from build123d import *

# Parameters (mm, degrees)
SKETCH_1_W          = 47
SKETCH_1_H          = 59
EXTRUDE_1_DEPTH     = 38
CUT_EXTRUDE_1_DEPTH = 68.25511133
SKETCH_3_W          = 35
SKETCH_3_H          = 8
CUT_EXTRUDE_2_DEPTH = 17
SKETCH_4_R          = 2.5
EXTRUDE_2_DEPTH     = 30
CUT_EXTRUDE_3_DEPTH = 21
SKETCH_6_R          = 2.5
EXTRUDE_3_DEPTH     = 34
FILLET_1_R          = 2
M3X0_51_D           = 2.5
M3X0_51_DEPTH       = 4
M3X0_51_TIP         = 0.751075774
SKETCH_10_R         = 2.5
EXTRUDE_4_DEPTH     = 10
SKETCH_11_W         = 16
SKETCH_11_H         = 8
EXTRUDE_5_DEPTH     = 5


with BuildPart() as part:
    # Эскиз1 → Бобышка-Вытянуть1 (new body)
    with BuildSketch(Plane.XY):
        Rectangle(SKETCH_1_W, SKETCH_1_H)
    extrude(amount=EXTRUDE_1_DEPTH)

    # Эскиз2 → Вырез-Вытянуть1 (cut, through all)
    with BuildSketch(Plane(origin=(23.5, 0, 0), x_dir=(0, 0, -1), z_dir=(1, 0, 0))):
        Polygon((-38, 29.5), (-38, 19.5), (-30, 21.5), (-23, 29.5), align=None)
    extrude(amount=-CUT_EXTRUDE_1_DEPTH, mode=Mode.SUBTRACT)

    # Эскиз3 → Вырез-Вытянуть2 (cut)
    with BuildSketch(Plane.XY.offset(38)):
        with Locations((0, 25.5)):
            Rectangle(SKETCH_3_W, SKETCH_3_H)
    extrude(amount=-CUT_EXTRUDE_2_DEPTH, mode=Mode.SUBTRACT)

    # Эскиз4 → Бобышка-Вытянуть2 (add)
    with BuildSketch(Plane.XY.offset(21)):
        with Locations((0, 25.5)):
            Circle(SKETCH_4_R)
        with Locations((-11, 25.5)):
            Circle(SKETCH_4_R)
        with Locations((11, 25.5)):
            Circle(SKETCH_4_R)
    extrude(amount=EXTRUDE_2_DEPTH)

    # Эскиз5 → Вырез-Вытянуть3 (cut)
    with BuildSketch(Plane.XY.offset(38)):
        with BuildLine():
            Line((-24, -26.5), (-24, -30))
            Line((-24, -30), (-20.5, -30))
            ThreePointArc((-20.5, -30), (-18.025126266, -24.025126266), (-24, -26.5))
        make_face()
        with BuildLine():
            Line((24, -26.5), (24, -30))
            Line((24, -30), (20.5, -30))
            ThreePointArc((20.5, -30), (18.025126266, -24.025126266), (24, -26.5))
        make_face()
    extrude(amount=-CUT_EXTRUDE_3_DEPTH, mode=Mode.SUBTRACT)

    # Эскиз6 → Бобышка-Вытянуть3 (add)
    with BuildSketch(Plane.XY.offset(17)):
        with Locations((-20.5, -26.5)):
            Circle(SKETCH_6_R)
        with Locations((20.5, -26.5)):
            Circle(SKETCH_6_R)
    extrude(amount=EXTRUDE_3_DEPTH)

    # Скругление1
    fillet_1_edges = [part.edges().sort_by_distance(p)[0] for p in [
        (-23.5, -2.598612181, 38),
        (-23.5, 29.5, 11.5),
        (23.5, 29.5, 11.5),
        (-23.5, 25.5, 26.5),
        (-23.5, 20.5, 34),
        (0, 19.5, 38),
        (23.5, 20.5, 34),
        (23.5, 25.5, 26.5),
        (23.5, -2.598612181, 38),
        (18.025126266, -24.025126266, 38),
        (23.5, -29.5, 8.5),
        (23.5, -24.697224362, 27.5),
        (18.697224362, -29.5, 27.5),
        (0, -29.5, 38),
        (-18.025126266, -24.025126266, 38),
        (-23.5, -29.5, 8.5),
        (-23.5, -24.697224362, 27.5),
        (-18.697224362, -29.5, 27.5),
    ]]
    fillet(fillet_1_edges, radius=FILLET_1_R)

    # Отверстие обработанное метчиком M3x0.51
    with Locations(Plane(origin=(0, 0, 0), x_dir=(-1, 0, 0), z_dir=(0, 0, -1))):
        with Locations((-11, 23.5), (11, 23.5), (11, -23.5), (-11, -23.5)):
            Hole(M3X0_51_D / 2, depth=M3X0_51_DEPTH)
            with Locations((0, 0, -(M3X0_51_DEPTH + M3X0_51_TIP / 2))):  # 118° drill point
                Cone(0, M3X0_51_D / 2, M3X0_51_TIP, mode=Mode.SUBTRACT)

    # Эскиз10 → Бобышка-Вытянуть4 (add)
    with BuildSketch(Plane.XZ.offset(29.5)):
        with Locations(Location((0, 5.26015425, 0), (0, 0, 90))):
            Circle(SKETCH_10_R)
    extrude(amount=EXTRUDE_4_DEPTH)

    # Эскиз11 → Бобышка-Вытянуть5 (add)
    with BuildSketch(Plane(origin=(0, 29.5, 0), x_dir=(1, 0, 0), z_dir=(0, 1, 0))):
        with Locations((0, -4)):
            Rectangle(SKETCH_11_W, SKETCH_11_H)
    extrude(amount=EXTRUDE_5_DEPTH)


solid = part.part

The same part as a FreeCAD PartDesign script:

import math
import FreeCAD as App
import Part
import Sketcher

V = App.Vector
Q = App.Units.Quantity


def edges_at(feature, points):
    """Names of the edges that pass closest to the given points."""
    edges = feature.Shape.Edges
    near = lambda p: min(range(len(edges)), key=lambda i: edges[i].distToShape(Part.Vertex(*p))[0])
    return sorted({f"Edge{near(p) + 1}" for p in points})

doc = App.newDocument("Part")
body = doc.addObject("PartDesign::Body", "Body")

# Sketch on XY plane
sketch1 = body.newObject("Sketcher::SketchObject", "Sketch")
sketch1.AttachmentSupport = (doc.getObject("XY_Plane"), [""])
sketch1.MapMode = "FlatFace"
sketch1.addGeometry([
    Part.LineSegment(V(-24, 30, 0), V(-24, -30, 0)),
    Part.LineSegment(V(-24, -30, 0), V(24, -30, 0)),
    Part.LineSegment(V(24, -30, 0), V(24, 30, 0)),
    Part.LineSegment(V(24, 30, 0), V(-24, 30, 0)),
], False)
sketch1.addConstraint([
    Sketcher.Constraint("Coincident", 0, 2, 1, 1),
    Sketcher.Constraint("Coincident", 1, 2, 2, 1),
    Sketcher.Constraint("Coincident", 2, 2, 3, 1),
    Sketcher.Constraint("Coincident", 3, 2, 0, 1),
    Sketcher.Constraint("Vertical", 0),
    Sketcher.Constraint("Horizontal", 1),
    Sketcher.Constraint("Vertical", 2),
    Sketcher.Constraint("Horizontal", 3),
    Sketcher.Constraint("Symmetric", 0, 2, 2, 2, -1, 1),
    Sketcher.Constraint("DistanceX", 1, 1, 1, 2, Q("47 mm")),
    Sketcher.Constraint("DistanceY", 0, 2, 0, 1, Q("59 mm")),
])
pad1 = body.newObject("PartDesign::Pad", "Pad")
pad1.Profile = sketch1
pad1.Length = 38

# Sketch on YZ plane
sketch2 = body.newObject("Sketcher::SketchObject", "Sketch001")
sketch2.AttachmentSupport = (doc.getObject("YZ_Plane"), [""])
sketch2.MapMode = "FlatFace"
sketch2.AttachmentOffset = App.Placement(V(0, 0, 23.5), App.Rotation())
sketch2.addGeometry([
    Part.LineSegment(V(30, 38, 0), V(20, 38, 0)),
    Part.LineSegment(V(20, 38, 0), V(22, 30, 0)),
    Part.LineSegment(V(22, 30, 0), V(30, 23, 0)),
    Part.LineSegment(V(30, 23, 0), V(30, 38, 0)),
], False)
sketch2.addConstraint([
    Sketcher.Constraint("Coincident", 0, 2, 1, 1),
    Sketcher.Constraint("Coincident", 1, 2, 2, 1),
    Sketcher.Constraint("Coincident", 2, 2, 3, 1),
    Sketcher.Constraint("Coincident", 3, 2, 0, 1),
    Sketcher.Constraint("Horizontal", 0),
    Sketcher.Constraint("Vertical", 3),
    Sketcher.Constraint("DistanceX", 0, 2, 0, 1, Q("10 mm")),
    Sketcher.Constraint("DistanceY", 3, 1, 3, 2, Q("15 mm")),
    Sketcher.Constraint("DistanceY", -1, 1, 0, 2, Q("38 mm")),
    Sketcher.Constraint("DistanceY", -1, 1, 1, 2, Q("30 mm")),
    Sketcher.Constraint("DistanceX", 0, 2, 1, 2, Q("2 mm")),
    Sketcher.Constraint("DistanceX", -1, 1, 0, 2, Q("19.5 mm")),
])
pocket1 = body.newObject("PartDesign::Pocket", "Pocket")
pocket1.Profile = sketch2
pocket1.Type = "ThroughAll"

# Sketch on XY plane
sketch3 = body.newObject("Sketcher::SketchObject", "Sketch002")
sketch3.AttachmentSupport = (doc.getObject("XY_Plane"), [""])
sketch3.MapMode = "FlatFace"
sketch3.AttachmentOffset = App.Placement(V(0, 0, 38), App.Rotation())
sketch3.addGeometry([
    Part.LineSegment(V(-18, 30, 0), V(-18, 22, 0)),
    Part.LineSegment(V(-18, 22, 0), V(18, 22, 0)),
    Part.LineSegment(V(18, 22, 0), V(18, 30, 0)),
    Part.LineSegment(V(18, 30, 0), V(-18, 30, 0)),
], False)
sketch3.addConstraint([
    Sketcher.Constraint("Coincident", 0, 2, 1, 1),
    Sketcher.Constraint("Coincident", 1, 2, 2, 1),
    Sketcher.Constraint("Coincident", 2, 2, 3, 1),
    Sketcher.Constraint("Coincident", 3, 2, 0, 1),
    Sketcher.Constraint("Vertical", 0),
    Sketcher.Constraint("Horizontal", 1),
    Sketcher.Constraint("Vertical", 2),
    Sketcher.Constraint("Horizontal", 3),
    Sketcher.Constraint("DistanceX", 1, 1, 1, 2, Q("35 mm")),
    Sketcher.Constraint("DistanceY", 0, 2, 0, 1, Q("8 mm")),
    Sketcher.Constraint("DistanceX", 0, 2, -1, 1, Q("17.5 mm")),
    Sketcher.Constraint("DistanceY", -1, 1, 0, 2, Q("21.5 mm")),
])
pocket2 = body.newObject("PartDesign::Pocket", "Pocket001")
pocket2.Profile = sketch3
pocket2.Length = 17

# Sketch on XY plane
sketch4 = body.newObject("Sketcher::SketchObject", "Sketch003")
sketch4.AttachmentSupport = (doc.getObject("XY_Plane"), [""])
sketch4.MapMode = "FlatFace"
sketch4.AttachmentOffset = App.Placement(V(0, 0, 21), App.Rotation())
sketch4.addGeometry([
    Part.Circle(V(0, 25.5, 0), V(0, 0, 1), 2.5),
    Part.Circle(V(-11, 25.5, 0), V(0, 0, 1), 2.5),
    Part.Circle(V(11, 25.5, 0), V(0, 0, 1), 2.5),
], False)
sketch4.addConstraint([
    Sketcher.Constraint("Equal", 0, 1),
    Sketcher.Constraint("Equal", 1, 2),
    Sketcher.Constraint("Symmetric", 1, 3, 2, 3, -2),
    Sketcher.Constraint("PointOnObject", 0, 3, -2),
    Sketcher.Constraint("Horizontal", 0, 3, 1, 3),
    Sketcher.Constraint("Diameter", 0, Q("5 mm")),
    Sketcher.Constraint("DistanceX", 1, 3, -1, 1, Q("11 mm")),
    Sketcher.Constraint("DistanceY", -1, 1, 0, 3, Q("25.5 mm")),
])
pad2 = body.newObject("PartDesign::Pad", "Pad001")
pad2.Profile = sketch4
pad2.Length = 30

# Sketch on XY plane
sketch5 = body.newObject("Sketcher::SketchObject", "Sketch004")
sketch5.AttachmentSupport = (doc.getObject("XY_Plane"), [""])
sketch5.MapMode = "FlatFace"
sketch5.AttachmentOffset = App.Placement(V(0, 0, 38), App.Rotation())
sketch5.addGeometry([
    Part.LineSegment(V(-24, -26.5, 0), V(-24, -30, 0)),  # 0
    Part.LineSegment(V(-24, -30, 0), V(-20.5, -30, 0)),  # 1
    Part.ArcOfCircle(Part.Circle(V(-20.5, -26.5, 0), V(0, 0, 1), 3.5), math.radians(-90), math.radians(180)),  # 2
    Part.LineSegment(V(24, -30, 0), V(24, -26.5, 0)),  # 3
    Part.ArcOfCircle(Part.Circle(V(20.5, -26.5, 0), V(0, 0, 1), 3.5), math.radians(0), math.radians(270)),  # 4
    Part.LineSegment(V(20.5, -30, 0), V(24, -30, 0)),  # 5
], False)
sketch5.addConstraint([
    Sketcher.Constraint("Coincident", 0, 2, 1, 1),
    Sketcher.Constraint("Tangent", 1, 2, 2, 1),
    Sketcher.Constraint("Tangent", 2, 2, 0, 1),
    Sketcher.Constraint("Tangent", 3, 2, 4, 1),
    Sketcher.Constraint("Tangent", 4, 2, 5, 1),
    Sketcher.Constraint("Coincident", 5, 2, 3, 1),
    Sketcher.Constraint("Vertical", 0),
    Sketcher.Constraint("Horizontal", 1),
    Sketcher.Constraint("Vertical", 3),
    Sketcher.Constraint("Horizontal", 5),
    Sketcher.Constraint("Equal", 2, 4),
    Sketcher.Constraint("Symmetric", 2, 3, 4, 3, -2),
    Sketcher.Constraint("Radius", 2, Q("3.5 mm")),
    Sketcher.Constraint("DistanceX", 0, 2, -1, 1, Q("24 mm")),
    Sketcher.Constraint("DistanceY", 0, 2, -1, 1, Q("30 mm")),
])
pocket3 = body.newObject("PartDesign::Pocket", "Pocket002")
pocket3.Profile = sketch5
pocket3.Length = 21

# Sketch on XY plane
sketch6 = body.newObject("Sketcher::SketchObject", "Sketch005")
sketch6.AttachmentSupport = (doc.getObject("XY_Plane"), [""])
sketch6.MapMode = "FlatFace"
sketch6.AttachmentOffset = App.Placement(V(0, 0, 17), App.Rotation())
sketch6.addGeometry([
    Part.Circle(V(-20.5, -26.5, 0), V(0, 0, 1), 2.5),
    Part.Circle(V(20.5, -26.5, 0), V(0, 0, 1), 2.5),
], False)
sketch6.addConstraint([
    Sketcher.Constraint("Equal", 0, 1),
    Sketcher.Constraint("Symmetric", 0, 3, 1, 3, -2),
    Sketcher.Constraint("Diameter", 0, Q("5 mm")),
    Sketcher.Constraint("DistanceX", 0, 3, 1, 3, Q("41 mm")),
    Sketcher.Constraint("DistanceY", 0, 3, -1, 1, Q("26.5 mm")),
])
pad3 = body.newObject("PartDesign::Pad", "Pad002")
pad3.Profile = sketch6
pad3.Length = 34
doc.recompute()

fillet = body.newObject("PartDesign::Fillet", "Fillet")
fillet.Base = (pad3, edges_at(pad3, [
    (-23.5, -2.599, 38),
    (-23.5, 29.5, 11.5),
    (23.5, 29.5, 11.5),
    (-23.5, 25.5, 26.5),
    (-23.5, 20.5, 34),
    (0, 19.5, 38),
    (23.5, 20.5, 34),
    (23.5, 25.5, 26.5),
    (23.5, -2.599, 38),
    (18.025, -24.025, 38),
    (23.5, -29.5, 8.5),
    (23.5, -24.697, 27.5),
    (18.697, -29.5, 27.5),
    (0, -29.5, 38),
    (-18.025, -24.025, 38),
    (-23.5, -29.5, 8.5),
    (-23.5, -24.697, 27.5),
    (-18.697, -29.5, 27.5),
]))
fillet.Radius = 2

# Sketch on XY plane
sketch7 = body.newObject("Sketcher::SketchObject", "Sketch006")
sketch7.AttachmentSupport = (doc.getObject("XY_Plane"), [""])
sketch7.MapMode = "FlatFace"
sketch7.addGeometry([
    Part.Circle(V(11, 23.5, 0), V(0, 0, 1), 1.2),
    Part.Circle(V(-11, 23.5, 0), V(0, 0, 1), 1.2),
    Part.Circle(V(-11, -23.5, 0), V(0, 0, 1), 1.2),
    Part.Circle(V(11, -23.5, 0), V(0, 0, 1), 1.2),
], False)
sketch7.addConstraint([
    Sketcher.Constraint("Equal", 0, 1),
    Sketcher.Constraint("Equal", 1, 2),
    Sketcher.Constraint("Equal", 2, 3),
    Sketcher.Constraint("Symmetric", 0, 3, 2, 3, -1, 1),
    Sketcher.Constraint("Symmetric", 1, 3, 3, 3, -1, 1),
    Sketcher.Constraint("Symmetric", 0, 3, 1, 3, -2),
    Sketcher.Constraint("Diameter", 0, Q("2.5 mm")),
    Sketcher.Constraint("DistanceX", -1, 1, 0, 3, Q("11 mm")),
    Sketcher.Constraint("DistanceY", 2, 3, 1, 3, Q("47 mm")),
])
doc.recompute()
hole = body.newObject("PartDesign::Hole", "Hole")
hole.Profile = sketch7
hole.ThreadType = "None"
hole.Diameter = 2.5
hole.DepthType = "Dimension"
hole.Depth = 4
hole.DrillPoint = "Angled"
hole.DrillPointAngle = 118
hole.Reversed = True

# Sketch on XZ plane
sketch8 = body.newObject("Sketcher::SketchObject", "Sketch007")
sketch8.AttachmentSupport = (doc.getObject("XZ_Plane"), [""])
sketch8.MapMode = "FlatFace"
sketch8.AttachmentOffset = App.Placement(V(0, 0, 29.5), App.Rotation())
sketch8.addGeometry(Part.Circle(V(0, 5.3, 0), V(0, 0, 1), 2.5), False)
sketch8.addConstraint([
    Sketcher.Constraint("PointOnObject", 0, 3, -2),
    Sketcher.Constraint("Diameter", 0, Q("5 mm")),
    Sketcher.Constraint("DistanceY", -1, 1, 0, 3, Q("5.260154 mm")),
])
pad4 = body.newObject("PartDesign::Pad", "Pad003")
pad4.Profile = sketch8
pad4.Length = 10

# Sketch on XZ plane
sketch9 = body.newObject("Sketcher::SketchObject", "Sketch008")
sketch9.AttachmentSupport = (doc.getObject("XZ_Plane"), [""])
sketch9.MapMode = "FlatFace"
sketch9.AttachmentOffset = App.Placement(V(0, 0, -29.5), App.Rotation())
sketch9.addGeometry([
    Part.LineSegment(V(-8, 0, 0), V(-8, 8, 0)),
    Part.LineSegment(V(-8, 8, 0), V(8, 8, 0)),
    Part.LineSegment(V(8, 8, 0), V(8, 0, 0)),
    Part.LineSegment(V(8, 0, 0), V(-8, 0, 0)),
], False)
sketch9.addConstraint([
    Sketcher.Constraint("Coincident", 0, 2, 1, 1),
    Sketcher.Constraint("Coincident", 1, 2, 2, 1),
    Sketcher.Constraint("Coincident", 2, 2, 3, 1),
    Sketcher.Constraint("Coincident", 3, 2, 0, 1),
    Sketcher.Constraint("Vertical", 0),
    Sketcher.Constraint("Horizontal", 1),
    Sketcher.Constraint("Vertical", 2),
    Sketcher.Constraint("Horizontal", 3),
    Sketcher.Constraint("Symmetric", 2, 2, 3, 2, -1, 1),
    Sketcher.Constraint("DistanceX", 1, 1, 1, 2, Q("16 mm")),
    Sketcher.Constraint("DistanceY", 0, 1, 0, 2, Q("8 mm")),
])
pad5 = body.newObject("PartDesign::Pad", "Pad004")
pad5.Profile = sketch9
pad5.Length = 5
pad5.Reversed = True

doc.recompute()
